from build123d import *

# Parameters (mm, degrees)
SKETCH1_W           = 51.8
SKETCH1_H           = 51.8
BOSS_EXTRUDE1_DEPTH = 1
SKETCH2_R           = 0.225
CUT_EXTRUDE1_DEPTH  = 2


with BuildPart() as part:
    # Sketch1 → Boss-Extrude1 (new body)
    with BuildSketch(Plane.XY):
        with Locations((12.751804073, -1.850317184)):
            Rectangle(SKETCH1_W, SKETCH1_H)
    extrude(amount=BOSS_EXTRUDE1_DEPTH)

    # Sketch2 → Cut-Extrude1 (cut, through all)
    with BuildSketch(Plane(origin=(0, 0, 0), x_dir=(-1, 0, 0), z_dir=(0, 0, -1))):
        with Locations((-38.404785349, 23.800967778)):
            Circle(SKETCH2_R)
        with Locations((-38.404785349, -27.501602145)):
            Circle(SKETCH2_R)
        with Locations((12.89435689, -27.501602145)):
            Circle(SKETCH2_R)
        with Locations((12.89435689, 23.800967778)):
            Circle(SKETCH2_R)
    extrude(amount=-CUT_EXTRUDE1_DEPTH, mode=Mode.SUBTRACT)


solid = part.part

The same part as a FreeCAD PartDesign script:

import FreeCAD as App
import Part
import Sketcher
from FreeCAD import Vector

doc = App.newDocument("Part")
body = doc.addObject("PartDesign::Body", "Body")

# Sketch on XY plane
sketch1 = doc.addObject("Sketcher::SketchObject", "Sketch")
body.addObject(sketch1)
sketch1.AttachmentSupport = (doc.XY_Plane, [""])
sketch1.MapMode = "FlatFace"
sketch1.addGeometry(Part.LineSegment(Vector(-13, 24, 0), Vector(-13, -28, 0)), False)
sketch1.addGeometry(Part.LineSegment(Vector(-13, -28, 0), Vector(39, -28, 0)), False)
sketch1.addGeometry(Part.LineSegment(Vector(39, -28, 0), Vector(39, 24, 0)), False)
sketch1.addGeometry(Part.LineSegment(Vector(39, 24, 0), Vector(-13, 24, 0)), False)
sketch1.addConstraint(Sketcher.Constraint("Coincident", 0, 2, 1, 1))
sketch1.addConstraint(Sketcher.Constraint("Coincident", 1, 2, 2, 1))
sketch1.addConstraint(Sketcher.Constraint("Coincident", 2, 2, 3, 1))
sketch1.addConstraint(Sketcher.Constraint("Coincident", 3, 2, 0, 1))
sketch1.addConstraint(Sketcher.Constraint("Vertical", 0))
sketch1.addConstraint(Sketcher.Constraint("Horizontal", 1))
sketch1.addConstraint(Sketcher.Constraint("Vertical", 2))
sketch1.addConstraint(Sketcher.Constraint("Horizontal", 3))
sketch1.addConstraint(Sketcher.Constraint("Equal", 3, 0))
sketch1.addConstraint(Sketcher.Constraint("DistanceX", 1, 1, 1, 2, 51.8))
sketch1.addConstraint(Sketcher.Constraint("DistanceX", 0, 2, -1, 1, 13.148196))
sketch1.addConstraint(Sketcher.Constraint("DistanceY", 0, 2, -1, 1, 27.750317))
pad1 = doc.addObject("PartDesign::Pad", "Pad")
body.addObject(pad1)
pad1.Profile = sketch1
pad1.Length = 1

# Sketch on XY plane
sketch2 = doc.addObject("Sketcher::SketchObject", "Sketch001")
body.addObject(sketch2)
sketch2.AttachmentSupport = (doc.XY_Plane, [""])
sketch2.MapMode = "FlatFace"
sketch2.addGeometry(Part.Circle(Vector(38.4, 23.8, 0), Vector(0, 0, 1), 0.23), False)
sketch2.addGeometry(Part.Circle(Vector(38.4, -27.5, 0), Vector(0, 0, 1), 0.23), False)
sketch2.addGeometry(Part.Circle(Vector(-12.89, -27.5, 0), Vector(0, 0, 1), 0.23), False)
sketch2.addGeometry(Part.Circle(Vector(-12.89, 23.8, 0), Vector(0, 0, 1), 0.23), False)
sketch2.addConstraint(Sketcher.Constraint("Equal", 0, 1))
sketch2.addConstraint(Sketcher.Constraint("Equal", 1, 2))
sketch2.addConstraint(Sketcher.Constraint("Equal", 2, 3))
sketch2.addConstraint(Sketcher.Constraint("Horizontal", 1, 3, 2, 3))
sketch2.addConstraint(Sketcher.Constraint("Horizontal", 0, 3, 3, 3))
sketch2.addConstraint(Sketcher.Constraint("Vertical", 0, 3, 1, 3))
sketch2.addConstraint(Sketcher.Constraint("Vertical", 2, 3, 3, 3))
sketch2.addConstraint(Sketcher.Constraint("Diameter", 0, 0.45))
sketch2.addConstraint(Sketcher.Constraint("DistanceY", 1, 3, 0, 3, 51.30257))
sketch2.addConstraint(Sketcher.Constraint("DistanceX", -1, 1, 0, 3, 38.404785))
sketch2.addConstraint(Sketcher.Constraint("DistanceY", -1, 1, 0, 3, 23.800968))
sketch2.addConstraint(Sketcher.Constraint("DistanceX", 2, 3, -1, 1, 12.894357))
pocket1 = doc.addObject("PartDesign::Pocket", "Pocket")
body.addObject(pocket1)
pocket1.Profile = sketch2
pocket1.Type = "ThroughAll"
pocket1.Reversed = True

doc.recompute()
